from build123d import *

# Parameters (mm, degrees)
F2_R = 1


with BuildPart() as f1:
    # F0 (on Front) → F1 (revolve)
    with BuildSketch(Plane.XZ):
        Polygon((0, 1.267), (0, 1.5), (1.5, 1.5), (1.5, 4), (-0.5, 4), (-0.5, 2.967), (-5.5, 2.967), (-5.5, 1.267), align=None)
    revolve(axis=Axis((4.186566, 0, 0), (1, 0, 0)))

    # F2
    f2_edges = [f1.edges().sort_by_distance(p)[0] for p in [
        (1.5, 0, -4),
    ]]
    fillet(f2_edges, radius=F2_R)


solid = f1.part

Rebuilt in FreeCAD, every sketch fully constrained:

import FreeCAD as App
import Part
import Sketcher
from FreeCAD import Vector
Q = App.Units.Quantity


def edges_at(feature, points):
    """Names of the edges that pass closest to the given points."""
    edges = feature.Shape.Edges
    near = lambda p: min(range(len(edges)), key=lambda i: edges[i].distToShape(Part.Vertex(*p))[0])
    return sorted({f"Edge{near(p) + 1}" for p in points})


def add_polygon(sketch, points):
    """Adds a closed chain of lines whose ends are joined by coincident constraints."""
    first, n = sketch.GeometryCount, len(points)
    for a, b in zip(points, points[1:] + points[:1]):
        sketch.addGeometry(Part.LineSegment(App.Vector(*a, 0), App.Vector(*b, 0)), False)
    for i in range(n):
        sketch.addConstraint(Sketcher.Constraint("Coincident", first + i, 2, first + (i + 1) % n, 1))

doc = App.newDocument("Part")
body = doc.addObject("PartDesign::Body", "Body")

# Sketch on XZ plane
sketch1 = doc.addObject("Sketcher::SketchObject", "Sketch")
body.addObject(sketch1)
sketch1.AttachmentSupport = (doc.XZ_Plane, [""])
sketch1.MapMode = "FlatFace"
add_polygon(sketch1, [(0, 1.27), (0, 1.5), (1.5, 1.5), (1.5, 4), (-0.5, 4), (-0.5, 2.97), (-5.5, 2.97), (-5.5, 1.27)])  # lines 0-7
sketch1.addConstraint([
    Sketcher.Constraint("Vertical", 0),
    Sketcher.Constraint("Horizontal", 1),
    Sketcher.Constraint("Vertical", 2),
    Sketcher.Constraint("Horizontal", 3),
    Sketcher.Constraint("Vertical", 4),
    Sketcher.Constraint("Horizontal", 5),
    Sketcher.Constraint("Vertical", 6),
    Sketcher.Constraint("Horizontal", 7),
    Sketcher.Constraint("PointOnObject", 0, 2, -2),
    Sketcher.Constraint("DistanceX", 3, 2, 3, 1, Q("2 mm")),
    Sketcher.Constraint("DistanceX", 5, 2, 5, 1, Q("5 mm")),
    Sketcher.Constraint("DistanceX", 1, 1, 1, 2, Q("1.5 mm")),
    Sketcher.Constraint("DistanceY", 2, 1, 2, 2, Q("2.5 mm")),
    Sketcher.Constraint("DistanceY", 6, 2, 6, 1, Q("1.7 mm")),
    Sketcher.Constraint("DistanceY", -1, 1, 2, 2, Q("4 mm")),
    Sketcher.Constraint("DistanceY", 0, 1, 0, 2, Q("0.233 mm")),
])
revolution = doc.addObject("PartDesign::Revolution", "Revolution")
body.addObject(revolution)
revolution.Profile = sketch1
revolution.ReferenceAxis = (sketch1, ["H_Axis"])
revolution.Angle = 360
doc.recompute()

fillet = doc.addObject("PartDesign::Fillet", "Fillet")
body.addObject(fillet)
fillet.Base = (revolution, edges_at(revolution, [(1.5, 0, -4)]))
fillet.Radius = 1

doc.recompute()
